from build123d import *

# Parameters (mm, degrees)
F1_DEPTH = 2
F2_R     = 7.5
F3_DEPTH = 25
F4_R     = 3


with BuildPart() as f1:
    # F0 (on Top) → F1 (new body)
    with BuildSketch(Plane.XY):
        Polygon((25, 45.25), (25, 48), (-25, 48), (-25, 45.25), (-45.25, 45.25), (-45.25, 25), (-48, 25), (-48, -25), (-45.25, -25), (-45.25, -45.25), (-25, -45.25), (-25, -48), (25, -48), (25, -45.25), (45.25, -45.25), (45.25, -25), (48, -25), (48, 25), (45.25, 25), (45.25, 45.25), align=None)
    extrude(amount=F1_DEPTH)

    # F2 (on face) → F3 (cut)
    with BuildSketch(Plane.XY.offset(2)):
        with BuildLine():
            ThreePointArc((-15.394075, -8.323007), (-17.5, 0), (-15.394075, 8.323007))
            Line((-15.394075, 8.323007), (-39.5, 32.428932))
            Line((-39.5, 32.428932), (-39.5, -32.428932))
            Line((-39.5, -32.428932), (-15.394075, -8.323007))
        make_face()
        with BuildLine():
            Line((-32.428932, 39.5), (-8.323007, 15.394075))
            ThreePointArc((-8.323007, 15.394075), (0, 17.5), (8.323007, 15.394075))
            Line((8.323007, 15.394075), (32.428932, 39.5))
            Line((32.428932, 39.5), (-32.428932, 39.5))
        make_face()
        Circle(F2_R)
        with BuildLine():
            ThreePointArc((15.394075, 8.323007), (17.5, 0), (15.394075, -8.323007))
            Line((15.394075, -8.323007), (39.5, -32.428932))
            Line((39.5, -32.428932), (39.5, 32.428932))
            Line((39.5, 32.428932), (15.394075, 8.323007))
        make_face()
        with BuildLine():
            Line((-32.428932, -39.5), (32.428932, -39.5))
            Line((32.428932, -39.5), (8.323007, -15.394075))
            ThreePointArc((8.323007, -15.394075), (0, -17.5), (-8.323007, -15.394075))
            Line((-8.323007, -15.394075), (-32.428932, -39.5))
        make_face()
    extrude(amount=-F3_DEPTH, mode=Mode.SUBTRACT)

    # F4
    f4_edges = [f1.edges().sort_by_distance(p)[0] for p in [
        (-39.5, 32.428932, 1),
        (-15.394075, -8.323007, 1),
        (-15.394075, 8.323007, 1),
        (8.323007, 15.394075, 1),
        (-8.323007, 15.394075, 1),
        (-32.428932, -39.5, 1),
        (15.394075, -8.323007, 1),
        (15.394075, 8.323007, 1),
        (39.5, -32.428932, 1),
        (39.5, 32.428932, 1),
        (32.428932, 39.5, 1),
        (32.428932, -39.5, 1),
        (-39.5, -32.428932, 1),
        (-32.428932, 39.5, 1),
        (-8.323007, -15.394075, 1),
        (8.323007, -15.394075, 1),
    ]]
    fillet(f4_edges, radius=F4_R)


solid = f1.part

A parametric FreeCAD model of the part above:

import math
import FreeCAD as App
import Part
import Sketcher

V = App.Vector
Q = App.Units.Quantity


def edges_at(feature, points):
    """Names of the edges that pass closest to the given points."""
    edges = feature.Shape.Edges
    near = lambda p: min(range(len(edges)), key=lambda i: edges[i].distToShape(Part.Vertex(*p))[0])
    return sorted({f"Edge{near(p) + 1}" for p in points})


def add_polygon(sketch, points):
    """Adds a closed chain of lines whose ends are joined by coincident constraints."""
    first, n = sketch.GeometryCount, len(points)
    for a, b in zip(points, points[1:] + points[:1]):
        sketch.addGeometry(Part.LineSegment(App.Vector(*a, 0), App.Vector(*b, 0)), False)
    for i in range(n):
        sketch.addConstraint(Sketcher.Constraint("Coincident", first + i, 2, first + (i + 1) % n, 1))

doc = App.newDocument("Part")
body = doc.addObject("PartDesign::Body", "Body")

sketch1 = body.newObject("Sketcher::SketchObject", "Sketch")
sketch1.AttachmentSupport = (doc.getObject("XY_Plane"), [""])
sketch1.MapMode = "FlatFace"
add_polygon(sketch1, [(25, 45.25), (25, 48), (-25, 48), (-25, 45.25), (-45.25, 45.25), (-45.25, 25), (-48, 25), (-48, -25), (-45.25, -25), (-45.25, -45.25), (-25, -45.25), (-25, -48), (25, -48), (25, -45.25), (45.25, -45.25), (45.25, -25), (48, -25), (48, 25), (45.25, 25), (45.25, 45.25)])
sketch1.addConstraint([
    Sketcher.Constraint("Vertical", 0),
    Sketcher.Constraint("Horizontal", 1),
    Sketcher.Constraint("Vertical", 2),
    Sketcher.Constraint("Horizontal", 3),
    Sketcher.Constraint("Vertical", 4),
    Sketcher.Constraint("Horizontal", 5),
    Sketcher.Constraint("Vertical", 6),
    Sketcher.Constraint("Horizontal", 7),
    Sketcher.Constraint("Vertical", 8),
    Sketcher.Constraint("Horizontal", 9),
    Sketcher.Constraint("Vertical", 10),
    Sketcher.Constraint("Horizontal", 11),
    Sketcher.Constraint("Vertical", 12),
    Sketcher.Constraint("Horizontal", 13),
    Sketcher.Constraint("Vertical", 14),
    Sketcher.Constraint("Horizontal", 15),
    Sketcher.Constraint("Vertical", 16),
    Sketcher.Constraint("Horizontal", 17),
    Sketcher.Constraint("Vertical", 18),
    Sketcher.Constraint("Horizontal", 19),
    Sketcher.Constraint("Symmetric", 0, 2, 10, 2, -1, 1),
    Sketcher.Constraint("Symmetric", 2, 2, 12, 2, -1, 1),
    Sketcher.Constraint("Symmetric", 4, 2, 14, 2, -1, 1),
    Sketcher.Constraint("Symmetric", 6, 2, 16, 2, -1, 1),
    Sketcher.Constraint("Symmetric", 8, 2, 18, 2, -1, 1),
    Sketcher.Constraint("Symmetric", 9, 2, 12, 2, -2),
    Sketcher.Constraint("Symmetric", 7, 2, 14, 2, -2),
    Sketcher.Constraint("Equal", 17, 0),
    Sketcher.Constraint("Equal", 19, 4),
    Sketcher.Constraint("Equal", 11, 6),
    Sketcher.Constraint("DistanceX", 1, 2, 1, 1, Q("50 mm")),
    Sketcher.Constraint("DistanceY", -1, 1, 0, 2, Q("48 mm")),
    Sketcher.Constraint("DistanceX", 3, 2, 3, 1, Q("20.25 mm")),
])
pad1 = body.newObject("PartDesign::Pad", "Pad")
pad1.Profile = sketch1
pad1.Length = 2

sketch2 = body.newObject("Sketcher::SketchObject", "Sketch001")
sketch2.AttachmentSupport = (doc.getObject("XY_Plane"), [""])
sketch2.MapMode = "FlatFace"
sketch2.AttachmentOffset = App.Placement(V(0, 0, 2), App.Rotation())
sketch2.addGeometry([
    Part.ArcOfCircle(Part.Circle(V(-0.000002, 0, 0), V(0, 0, 1), 17.499998), math.radians(151.601547), math.radians(208.398453)),
    Part.LineSegment(V(-15.394075, 8.323007, 0), V(-39.5, 32.428932, 0)),
    Part.LineSegment(V(-39.5, 32.428932, 0), V(-39.5, -32.428932, 0)),
    Part.LineSegment(V(-39.5, -32.428932, 0), V(-15.394075, -8.323007, 0)),
    Part.LineSegment(V(-32.428932, 39.5, 0), V(-8.323007, 15.394075, 0)),
    Part.ArcOfCircle(Part.Circle(V(0, 0.000002, 0), V(0, 0, 1), 17.499998), math.radians(61.601547), math.radians(118.398453)),
    Part.LineSegment(V(8.323007, 15.394075, 0), V(32.428932, 39.5, 0)),
    Part.LineSegment(V(32.428932, 39.5, 0), V(-32.428932, 39.5, 0)),
    Part.Circle(V(0, 0, 0), V(0, 0, 1), 7.5),
    Part.ArcOfCircle(Part.Circle(V(0.000002, 0, 0), V(0, 0, 1), 17.499998), math.radians(-28.398453), math.radians(28.398453)),
    Part.LineSegment(V(15.394075, -8.323007, 0), V(39.5, -32.428932, 0)),
    Part.LineSegment(V(39.5, -32.428932, 0), V(39.5, 32.428932, 0)),
    Part.LineSegment(V(39.5, 32.428932, 0), V(15.394075, 8.323007, 0)),
    Part.LineSegment(V(-32.428932, -39.5, 0), V(32.428932, -39.5, 0)),
    Part.LineSegment(V(32.428932, -39.5, 0), V(8.323007, -15.394075, 0)),
    Part.ArcOfCircle(Part.Circle(V(0, -0.000002, 0), V(0, 0, 1), 17.499998), math.radians(-118.398453), math.radians(-61.601547)),
    Part.LineSegment(V(-8.323007, -15.394075, 0), V(-32.428932, -39.5, 0)),
], False)
sketch2.addConstraint([
    Sketcher.Constraint("Coincident", 0, 1, 1, 1),
    Sketcher.Constraint("Coincident", 1, 2, 2, 1),
    Sketcher.Constraint("Coincident", 2, 2, 3, 1),
    Sketcher.Constraint("Coincident", 3, 2, 0, 2),
    Sketcher.Constraint("Coincident", 4, 2, 5, 2),
    Sketcher.Constraint("Coincident", 5, 1, 6, 1),
    Sketcher.Constraint("Coincident", 6, 2, 7, 1),
    Sketcher.Constraint("Coincident", 7, 2, 4, 1),
    Sketcher.Constraint("Coincident", 9, 1, 10, 1),
    Sketcher.Constraint("Coincident", 10, 2, 11, 1),
    Sketcher.Constraint("Coincident", 11, 2, 12, 1),
    Sketcher.Constraint("Coincident", 12, 2, 9, 2),
    Sketcher.Constraint("Coincident", 13, 2, 14, 1),
    Sketcher.Constraint("Coincident", 14, 2, 15, 2),
    Sketcher.Constraint("Coincident", 15, 1, 16, 1),
    Sketcher.Constraint("Coincident", 16, 2, 13, 1),
    Sketcher.Constraint("Vertical", 2),
    Sketcher.Constraint("Horizontal", 7),
    Sketcher.Constraint("Vertical", 11),
    Sketcher.Constraint("Horizontal", 13),
    Sketcher.Constraint("Coincident", 0, 3, -1, 1),
    Sketcher.Constraint("Coincident", 5, 3, -1, 1),
    Sketcher.Constraint("Coincident", 8, 3, -1, 1),
    Sketcher.Constraint("Coincident", 9, 3, -1, 1),
    Sketcher.Constraint("Coincident", 15, 3, -1, 1),
    Sketcher.Constraint("Equal", 0, 5),
    Sketcher.Constraint("Equal", 5, 9),
    Sketcher.Constraint("Equal", 9, 15),
    Sketcher.Constraint("Symmetric", 1, 2, 10, 2, -1, 1),
    Sketcher.Constraint("Symmetric", 7, 2, 13, 2, -1, 1),
    Sketcher.Constraint("Perpendicular", 1, 3),
    Sketcher.Constraint("Perpendicular", 3, 4),
    Sketcher.Constraint("Perpendicular", 4, 6),
    Sketcher.Constraint("Perpendicular", 6, 10),
    Sketcher.Constraint("Perpendicular", 10, 12),
    Sketcher.Constraint("Perpendicular", 12, 14),
    Sketcher.Constraint("Perpendicular", 14, 16),
    Sketcher.Constraint("Horizontal", 4, 2, 5, 1),
    Sketcher.Constraint("Horizontal", 3, 2, 9, 1),
    Sketcher.Constraint("Horizontal", 2, 2, 10, 2),
    Sketcher.Constraint("Horizontal", 1, 2, 11, 2),
    Sketcher.Constraint("Horizontal", 14, 2, 15, 1),
    Sketcher.Constraint("Equal", 13, 2),
    Sketcher.Constraint("Equal", 3, 4),
    Sketcher.Constraint("Diameter", 8, Q("15 mm")),
    Sketcher.Constraint("DistanceX", 1, 2, -1, 1, Q("39.5 mm")),
    Sketcher.Constraint("Radius", 0, Q("17.499998 mm")),
    Sketcher.Constraint("DistanceX", 7, 2, 7, 1, Q("64.857864 mm")),
])
pocket1 = body.newObject("PartDesign::Pocket", "Pocket")
pocket1.Profile = sketch2
pocket1.Length = 25
doc.recompute()

fillet = body.newObject("PartDesign::Fillet", "Fillet")
fillet.Base = (pocket1, edges_at(pocket1, [
    (-39.5, 32.429, 1),
    (-15.394, -8.323, 1),
    (-15.394, 8.323, 1),
    (8.323, 15.394, 1),
    (-8.323, 15.394, 1),
    (-32.429, -39.5, 1),
    (15.394, -8.323, 1),
    (15.394, 8.323, 1),
    (39.5, -32.429, 1),
    (39.5, 32.429, 1),
    (32.429, 39.5, 1),
    (32.429, -39.5, 1),
    (-39.5, -32.429, 1),
    (-32.429, 39.5, 1),
    (-8.323, -15.394, 1),
    (8.323, -15.394, 1),
]))
fillet.Radius = 3

doc.recompute()
